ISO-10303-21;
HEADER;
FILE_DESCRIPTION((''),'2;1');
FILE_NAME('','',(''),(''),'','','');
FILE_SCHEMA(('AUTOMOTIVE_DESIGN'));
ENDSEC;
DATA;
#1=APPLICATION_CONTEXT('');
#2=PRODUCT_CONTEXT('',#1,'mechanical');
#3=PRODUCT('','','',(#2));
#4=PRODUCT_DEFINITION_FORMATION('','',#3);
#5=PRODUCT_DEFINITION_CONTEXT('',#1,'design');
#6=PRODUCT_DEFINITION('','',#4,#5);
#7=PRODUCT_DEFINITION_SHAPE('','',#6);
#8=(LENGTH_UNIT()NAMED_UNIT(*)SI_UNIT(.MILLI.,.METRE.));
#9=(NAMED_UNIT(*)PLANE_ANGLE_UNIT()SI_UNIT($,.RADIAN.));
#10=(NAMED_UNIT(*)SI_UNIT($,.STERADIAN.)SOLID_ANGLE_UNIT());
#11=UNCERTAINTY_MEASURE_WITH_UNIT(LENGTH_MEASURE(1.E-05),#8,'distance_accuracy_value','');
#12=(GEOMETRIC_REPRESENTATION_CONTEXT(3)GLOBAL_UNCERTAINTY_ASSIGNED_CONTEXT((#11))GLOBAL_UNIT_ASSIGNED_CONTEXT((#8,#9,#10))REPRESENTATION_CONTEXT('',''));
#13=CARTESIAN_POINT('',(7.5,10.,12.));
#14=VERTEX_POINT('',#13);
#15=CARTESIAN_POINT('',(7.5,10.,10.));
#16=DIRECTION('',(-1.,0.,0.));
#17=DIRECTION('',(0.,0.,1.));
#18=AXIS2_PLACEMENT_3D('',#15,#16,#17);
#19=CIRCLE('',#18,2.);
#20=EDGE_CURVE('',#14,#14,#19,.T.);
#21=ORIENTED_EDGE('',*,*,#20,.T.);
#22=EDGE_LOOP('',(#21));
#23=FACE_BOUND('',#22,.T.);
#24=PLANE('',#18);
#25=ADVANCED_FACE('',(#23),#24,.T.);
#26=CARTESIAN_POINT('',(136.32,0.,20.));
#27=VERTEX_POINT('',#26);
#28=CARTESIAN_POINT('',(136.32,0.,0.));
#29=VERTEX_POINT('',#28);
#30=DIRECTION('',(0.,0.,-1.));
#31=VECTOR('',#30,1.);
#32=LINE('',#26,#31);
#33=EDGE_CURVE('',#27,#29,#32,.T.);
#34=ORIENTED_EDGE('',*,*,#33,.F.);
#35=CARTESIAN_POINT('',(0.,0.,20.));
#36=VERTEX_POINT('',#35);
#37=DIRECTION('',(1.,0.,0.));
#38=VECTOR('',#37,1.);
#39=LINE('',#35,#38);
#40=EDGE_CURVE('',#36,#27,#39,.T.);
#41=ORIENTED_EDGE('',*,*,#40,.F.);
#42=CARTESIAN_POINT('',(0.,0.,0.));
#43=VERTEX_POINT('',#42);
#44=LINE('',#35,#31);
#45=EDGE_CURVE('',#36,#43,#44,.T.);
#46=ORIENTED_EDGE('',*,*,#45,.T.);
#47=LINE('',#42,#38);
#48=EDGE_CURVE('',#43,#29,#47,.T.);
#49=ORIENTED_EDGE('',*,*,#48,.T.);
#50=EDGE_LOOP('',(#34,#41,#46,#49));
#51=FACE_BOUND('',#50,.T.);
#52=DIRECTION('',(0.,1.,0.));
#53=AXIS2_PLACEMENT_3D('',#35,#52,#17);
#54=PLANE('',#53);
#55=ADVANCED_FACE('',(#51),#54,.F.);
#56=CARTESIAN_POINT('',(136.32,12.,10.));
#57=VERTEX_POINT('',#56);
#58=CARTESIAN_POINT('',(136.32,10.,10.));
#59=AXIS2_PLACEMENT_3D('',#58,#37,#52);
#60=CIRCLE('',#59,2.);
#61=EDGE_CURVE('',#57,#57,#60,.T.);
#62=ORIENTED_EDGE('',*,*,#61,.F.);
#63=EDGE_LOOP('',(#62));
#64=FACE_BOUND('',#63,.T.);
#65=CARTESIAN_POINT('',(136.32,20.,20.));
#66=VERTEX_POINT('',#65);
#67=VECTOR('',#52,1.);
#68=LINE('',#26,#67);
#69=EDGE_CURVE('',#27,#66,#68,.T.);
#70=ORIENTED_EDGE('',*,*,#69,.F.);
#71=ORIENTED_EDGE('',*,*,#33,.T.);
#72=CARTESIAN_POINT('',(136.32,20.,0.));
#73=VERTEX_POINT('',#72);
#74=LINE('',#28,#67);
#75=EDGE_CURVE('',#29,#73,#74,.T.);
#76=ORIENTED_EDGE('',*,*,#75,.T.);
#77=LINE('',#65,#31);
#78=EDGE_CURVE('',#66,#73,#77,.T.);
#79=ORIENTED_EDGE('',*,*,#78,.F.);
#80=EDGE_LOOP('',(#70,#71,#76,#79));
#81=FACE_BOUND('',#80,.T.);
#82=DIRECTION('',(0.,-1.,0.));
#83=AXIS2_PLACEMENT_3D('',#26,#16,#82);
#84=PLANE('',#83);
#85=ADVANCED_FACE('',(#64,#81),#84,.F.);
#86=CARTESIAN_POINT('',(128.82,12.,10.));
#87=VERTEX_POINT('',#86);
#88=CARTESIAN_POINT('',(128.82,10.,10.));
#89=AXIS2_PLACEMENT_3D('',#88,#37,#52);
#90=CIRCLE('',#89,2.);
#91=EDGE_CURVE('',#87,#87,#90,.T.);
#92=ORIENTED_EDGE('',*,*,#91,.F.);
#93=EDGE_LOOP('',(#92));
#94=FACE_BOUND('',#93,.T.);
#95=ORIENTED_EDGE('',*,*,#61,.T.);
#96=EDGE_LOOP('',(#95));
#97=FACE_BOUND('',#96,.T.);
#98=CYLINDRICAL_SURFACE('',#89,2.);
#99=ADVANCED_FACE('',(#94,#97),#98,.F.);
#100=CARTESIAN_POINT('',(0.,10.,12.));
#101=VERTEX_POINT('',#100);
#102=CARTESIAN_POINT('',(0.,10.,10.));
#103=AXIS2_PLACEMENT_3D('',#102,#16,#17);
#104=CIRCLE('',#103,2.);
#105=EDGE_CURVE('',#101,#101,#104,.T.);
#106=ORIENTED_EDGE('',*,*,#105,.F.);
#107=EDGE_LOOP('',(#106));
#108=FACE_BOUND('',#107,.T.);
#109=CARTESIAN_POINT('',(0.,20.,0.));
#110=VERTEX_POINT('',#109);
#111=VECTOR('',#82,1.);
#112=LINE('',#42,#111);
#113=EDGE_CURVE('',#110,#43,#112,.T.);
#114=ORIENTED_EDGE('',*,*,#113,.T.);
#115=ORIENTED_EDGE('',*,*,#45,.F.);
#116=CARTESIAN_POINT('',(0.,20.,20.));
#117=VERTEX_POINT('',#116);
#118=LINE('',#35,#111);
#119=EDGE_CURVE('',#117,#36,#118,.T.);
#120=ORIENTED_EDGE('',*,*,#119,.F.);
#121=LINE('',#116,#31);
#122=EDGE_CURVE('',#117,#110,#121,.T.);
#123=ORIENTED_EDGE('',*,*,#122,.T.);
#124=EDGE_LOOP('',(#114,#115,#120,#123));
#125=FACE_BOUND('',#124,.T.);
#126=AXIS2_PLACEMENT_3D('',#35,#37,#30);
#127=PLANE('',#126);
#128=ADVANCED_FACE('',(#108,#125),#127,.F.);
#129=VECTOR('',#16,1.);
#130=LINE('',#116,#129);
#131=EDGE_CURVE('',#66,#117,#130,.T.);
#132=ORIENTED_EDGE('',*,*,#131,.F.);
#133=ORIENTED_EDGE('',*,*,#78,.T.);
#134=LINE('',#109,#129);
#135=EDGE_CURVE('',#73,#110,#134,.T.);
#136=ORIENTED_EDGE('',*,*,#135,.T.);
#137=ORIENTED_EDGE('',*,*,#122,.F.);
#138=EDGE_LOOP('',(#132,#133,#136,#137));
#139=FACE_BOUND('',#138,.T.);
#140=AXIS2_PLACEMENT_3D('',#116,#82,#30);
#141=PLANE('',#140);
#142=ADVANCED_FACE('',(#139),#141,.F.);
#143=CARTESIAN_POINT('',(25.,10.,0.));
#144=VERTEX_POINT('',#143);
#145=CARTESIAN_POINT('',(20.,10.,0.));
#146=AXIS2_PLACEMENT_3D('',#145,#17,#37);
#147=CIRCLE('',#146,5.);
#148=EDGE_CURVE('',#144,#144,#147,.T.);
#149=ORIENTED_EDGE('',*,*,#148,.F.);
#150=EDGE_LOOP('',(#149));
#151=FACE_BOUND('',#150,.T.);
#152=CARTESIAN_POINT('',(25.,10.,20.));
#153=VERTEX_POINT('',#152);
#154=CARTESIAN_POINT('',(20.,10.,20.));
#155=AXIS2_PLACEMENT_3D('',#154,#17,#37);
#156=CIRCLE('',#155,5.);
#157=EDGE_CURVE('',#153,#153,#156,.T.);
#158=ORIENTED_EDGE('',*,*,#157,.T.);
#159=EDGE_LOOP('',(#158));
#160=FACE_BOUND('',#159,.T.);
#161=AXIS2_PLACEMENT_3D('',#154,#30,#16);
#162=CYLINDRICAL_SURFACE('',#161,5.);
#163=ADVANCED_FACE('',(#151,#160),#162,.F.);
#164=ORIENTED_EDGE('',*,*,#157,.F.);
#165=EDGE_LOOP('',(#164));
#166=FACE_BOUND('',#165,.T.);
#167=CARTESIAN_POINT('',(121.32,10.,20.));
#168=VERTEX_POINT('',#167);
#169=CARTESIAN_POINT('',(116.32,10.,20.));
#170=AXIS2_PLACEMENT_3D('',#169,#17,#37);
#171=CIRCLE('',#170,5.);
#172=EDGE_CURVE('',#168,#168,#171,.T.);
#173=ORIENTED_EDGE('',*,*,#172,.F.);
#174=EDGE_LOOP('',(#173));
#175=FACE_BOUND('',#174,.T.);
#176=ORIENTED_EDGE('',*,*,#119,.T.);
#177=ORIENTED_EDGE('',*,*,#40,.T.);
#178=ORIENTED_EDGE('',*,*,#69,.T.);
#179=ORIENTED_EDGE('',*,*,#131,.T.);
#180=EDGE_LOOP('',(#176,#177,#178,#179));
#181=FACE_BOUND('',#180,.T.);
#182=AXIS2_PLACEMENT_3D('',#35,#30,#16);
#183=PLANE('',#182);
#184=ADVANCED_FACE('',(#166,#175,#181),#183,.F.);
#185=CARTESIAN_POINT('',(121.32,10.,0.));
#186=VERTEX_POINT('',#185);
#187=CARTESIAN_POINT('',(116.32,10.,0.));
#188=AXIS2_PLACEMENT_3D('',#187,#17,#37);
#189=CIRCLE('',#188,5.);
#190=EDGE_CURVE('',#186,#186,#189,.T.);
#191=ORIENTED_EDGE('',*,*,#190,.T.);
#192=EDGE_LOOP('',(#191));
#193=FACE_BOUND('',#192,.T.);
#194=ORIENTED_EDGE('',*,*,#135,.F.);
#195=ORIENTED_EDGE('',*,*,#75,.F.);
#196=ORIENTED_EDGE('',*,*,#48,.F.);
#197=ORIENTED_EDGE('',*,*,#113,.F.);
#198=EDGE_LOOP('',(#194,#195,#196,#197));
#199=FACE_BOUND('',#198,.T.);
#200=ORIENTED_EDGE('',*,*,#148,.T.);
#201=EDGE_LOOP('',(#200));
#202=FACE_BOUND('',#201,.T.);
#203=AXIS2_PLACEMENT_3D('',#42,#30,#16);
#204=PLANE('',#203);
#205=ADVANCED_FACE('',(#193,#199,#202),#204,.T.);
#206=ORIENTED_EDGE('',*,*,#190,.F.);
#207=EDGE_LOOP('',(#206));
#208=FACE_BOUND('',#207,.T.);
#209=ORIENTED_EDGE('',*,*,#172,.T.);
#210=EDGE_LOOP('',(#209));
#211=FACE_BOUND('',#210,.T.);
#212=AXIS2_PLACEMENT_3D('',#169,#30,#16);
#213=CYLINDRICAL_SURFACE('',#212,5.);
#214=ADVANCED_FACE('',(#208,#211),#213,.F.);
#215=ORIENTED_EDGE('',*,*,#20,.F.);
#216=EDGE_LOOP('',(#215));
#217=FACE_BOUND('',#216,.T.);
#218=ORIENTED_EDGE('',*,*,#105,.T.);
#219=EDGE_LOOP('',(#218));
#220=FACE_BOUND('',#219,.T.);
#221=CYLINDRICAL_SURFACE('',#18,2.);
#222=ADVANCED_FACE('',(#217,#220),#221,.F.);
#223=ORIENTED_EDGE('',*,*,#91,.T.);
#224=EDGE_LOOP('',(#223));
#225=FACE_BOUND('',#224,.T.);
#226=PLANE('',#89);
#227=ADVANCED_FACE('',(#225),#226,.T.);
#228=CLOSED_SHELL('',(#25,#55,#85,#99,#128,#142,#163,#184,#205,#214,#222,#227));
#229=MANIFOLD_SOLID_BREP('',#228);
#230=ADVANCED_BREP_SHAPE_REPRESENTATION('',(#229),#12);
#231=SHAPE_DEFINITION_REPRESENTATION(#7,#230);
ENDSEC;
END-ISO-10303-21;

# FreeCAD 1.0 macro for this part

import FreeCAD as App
import Part
import Sketcher
Q = App.Units.Quantity

doc = App.newDocument("Part")
body = doc.addObject("PartDesign::Body", "Body")

# Sketch on XY plane
sketch1 = body.newObject("Sketcher::SketchObject", "Sketch")
sketch1.AttachmentSupport = (doc.getObject("XY_Plane"), [""])
sketch1.MapMode = "FlatFace"
sketch1.addGeometry([
    Part.LineSegment(App.Vector(0, 20, 0), App.Vector(0, 0, 0)),  # 0
    Part.LineSegment(App.Vector(0, 0, 0), App.Vector(136, 0, 0)),  # 1
    Part.LineSegment(App.Vector(136, 0, 0), App.Vector(136, 20, 0)),  # 2
    Part.LineSegment(App.Vector(136, 20, 0), App.Vector(0, 20, 0)),  # 3
    Part.Circle(App.Vector(20, 10, 0), App.Vector(0, 0, 1), 5),  # 4
    Part.Circle(App.Vector(116, 10, 0), App.Vector(0, 0, 1), 5),  # 5
], False)
sketch1.addConstraint([
    Sketcher.Constraint("Coincident", 0, 2, 1, 1),
    Sketcher.Constraint("Coincident", 1, 2, 2, 1),
    Sketcher.Constraint("Coincident", 2, 2, 3, 1),
    Sketcher.Constraint("Coincident", 3, 2, 0, 1),
    Sketcher.Constraint("Vertical", 0),
    Sketcher.Constraint("Horizontal", 1),
    Sketcher.Constraint("Vertical", 2),
    Sketcher.Constraint("Horizontal", 3),
    Sketcher.Constraint("Coincident", 0, 2, -1, 1),
    Sketcher.Constraint("Equal", 4, 5),
    Sketcher.Constraint("Horizontal", 4, 3, 5, 3),
    Sketcher.Constraint("Diameter", 4, Q("10 mm")),
    Sketcher.Constraint("DistanceY", 0, 2, 0, 1, Q("20 mm")),
    Sketcher.Constraint("DistanceX", -1, 1, 4, 3, Q("20 mm")),
    Sketcher.Constraint("DistanceY", -1, 1, 4, 3, Q("10 mm")),
    Sketcher.Constraint("DistanceX", 5, 3, 1, 2, Q("20 mm")),
    Sketcher.Constraint("DistanceX", 1, 1, 1, 2, Q("136.32 mm")),
])
pad1 = body.newObject("PartDesign::Pad", "Pad")
pad1.Profile = sketch1
pad1.Length = 20

# Sketch on YZ plane
sketch2 = body.newObject("Sketcher::SketchObject", "Sketch001")
sketch2.AttachmentSupport = (doc.getObject("YZ_Plane"), [""])
sketch2.MapMode = "FlatFace"
sketch2.addGeometry(Part.Circle(App.Vector(10, 10, 0), App.Vector(0, 0, 1), 2), False)
sketch2.addConstraint([
    Sketcher.Constraint("Diameter", 0, Q("4 mm")),
    Sketcher.Constraint("DistanceX", -1, 1, 0, 3, Q("10 mm")),
    Sketcher.Constraint("DistanceY", -1, 1, 0, 3, Q("10 mm")),
])
pocket1 = body.newObject("PartDesign::Pocket", "Pocket")
pocket1.Profile = sketch2
pocket1.Length = 7.5
pocket1.Reversed = True

# Sketch on YZ plane
sketch3 = body.newObject("Sketcher::SketchObject", "Sketch002")
sketch3.AttachmentSupport = (doc.getObject("YZ_Plane"), [""])
sketch3.MapMode = "FlatFace"
sketch3.AttachmentOffset = App.Placement(App.Vector(0, 0, 128.82), App.Rotation())
sketch3.addGeometry(Part.Circle(App.Vector(10, 10, 0), App.Vector(0, 0, 1), 2), False)
sketch3.addConstraint([
    Sketcher.Constraint("Diameter", 0, Q("4 mm")),
    Sketcher.Constraint("DistanceX", -1, 1, 0, 3, Q("10 mm")),
    Sketcher.Constraint("DistanceY", -1, 1, 0, 3, Q("10 mm")),
])
pocket2 = body.newObject("PartDesign::Pocket", "Pocket001")
pocket2.Profile = sketch3
pocket2.Length = 7.5
pocket2.Reversed = True

doc.recompute()
